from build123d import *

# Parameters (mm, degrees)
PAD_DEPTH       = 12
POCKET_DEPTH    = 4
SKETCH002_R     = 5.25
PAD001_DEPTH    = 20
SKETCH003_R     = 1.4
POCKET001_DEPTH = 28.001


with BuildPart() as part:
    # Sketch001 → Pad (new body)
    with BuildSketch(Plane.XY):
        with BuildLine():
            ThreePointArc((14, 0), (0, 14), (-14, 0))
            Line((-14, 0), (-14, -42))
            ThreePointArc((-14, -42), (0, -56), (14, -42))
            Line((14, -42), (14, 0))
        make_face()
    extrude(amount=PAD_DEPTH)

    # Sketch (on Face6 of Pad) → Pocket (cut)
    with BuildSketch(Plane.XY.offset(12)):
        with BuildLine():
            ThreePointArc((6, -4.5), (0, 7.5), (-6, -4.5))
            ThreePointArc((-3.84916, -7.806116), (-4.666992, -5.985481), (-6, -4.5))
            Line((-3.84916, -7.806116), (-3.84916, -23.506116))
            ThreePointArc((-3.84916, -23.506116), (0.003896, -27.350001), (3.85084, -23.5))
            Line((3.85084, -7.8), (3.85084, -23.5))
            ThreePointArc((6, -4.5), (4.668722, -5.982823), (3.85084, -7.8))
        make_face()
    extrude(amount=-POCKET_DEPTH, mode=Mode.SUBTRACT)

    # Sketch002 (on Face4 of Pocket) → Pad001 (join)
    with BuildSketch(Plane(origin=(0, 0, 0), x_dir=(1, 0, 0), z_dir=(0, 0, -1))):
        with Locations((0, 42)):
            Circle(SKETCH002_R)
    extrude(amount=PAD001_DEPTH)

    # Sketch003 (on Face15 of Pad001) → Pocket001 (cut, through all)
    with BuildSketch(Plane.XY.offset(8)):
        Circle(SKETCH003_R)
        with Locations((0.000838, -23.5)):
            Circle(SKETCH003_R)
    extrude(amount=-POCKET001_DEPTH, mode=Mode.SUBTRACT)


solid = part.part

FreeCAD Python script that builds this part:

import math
import FreeCAD as App
import Part
import Sketcher
from FreeCAD import Vector
Q = App.Units.Quantity

doc = App.newDocument("Part")
body = doc.addObject("PartDesign::Body", "Body")

# Sketch on XY plane
sketch1 = body.newObject("Sketcher::SketchObject", "Sketch")
sketch1.AttachmentSupport = (doc.getObject("XY_Plane"), [""])
sketch1.MapMode = "FlatFace"
sketch1.addGeometry([
    Part.ArcOfCircle(Part.Circle(Vector(0, 0, 0), Vector(0, 0, 1), 14), math.radians(0), math.radians(180)),
    Part.LineSegment(Vector(-14, 0, 0), Vector(-14, -42, 0)),
    Part.ArcOfCircle(Part.Circle(Vector(0, -42, 0), Vector(0, 0, 1), 14), math.radians(180), math.radians(360)),
    Part.LineSegment(Vector(14, -42, 0), Vector(14, 0, 0)),
], False)
sketch1.addConstraint([
    Sketcher.Constraint("Tangent", 0, 2, 1, 1),
    Sketcher.Constraint("Tangent", 1, 2, 2, 1),
    Sketcher.Constraint("Tangent", 2, 2, 3, 1),
    Sketcher.Constraint("Tangent", 3, 2, 0, 1),
    Sketcher.Constraint("Vertical", 1),
    Sketcher.Constraint("Vertical", 3),
    Sketcher.Constraint("Coincident", 0, 3, -1, 1),
    Sketcher.Constraint("Radius", 0, Q("14 mm")),
    Sketcher.Constraint("DistanceY", 1, 2, 1, 1, Q("42 mm")),
])
pad1 = body.newObject("PartDesign::Pad", "Pad")
pad1.Profile = sketch1
pad1.Length = 12

# Sketch on XY plane
sketch2 = body.newObject("Sketcher::SketchObject", "Sketch001")
sketch2.AttachmentSupport = (doc.getObject("XY_Plane"), [""])
sketch2.MapMode = "FlatFace"
sketch2.AttachmentOffset = App.Placement(Vector(0, 0, 12), App.Rotation())
sketch2.addGeometry([
    Part.ArcOfCircle(Part.Circle(Vector(0, 0, 0), Vector(0, 0, 1), 7.5), math.radians(-37), math.radians(217)),  # 0
    Part.ArcOfCircle(Part.Circle(Vector(-10.1, -9.5, 0), Vector(0, 0, 1), 6.5), math.radians(15), math.radians(51)),  # 1
    Part.LineSegment(Vector(-3.8, -7.8, 0), Vector(-3.8, -23.5, 0)),  # 2
    Part.ArcOfCircle(Part.Circle(Vector(0, -23.5, 0), Vector(0, 0, 1), 3.9), math.radians(-180), math.radians(0)),  # 3
    Part.LineSegment(Vector(3.9, -23.5, 0), Vector(3.9, -7.8, 0)),  # 4
    Part.ArcOfCircle(Part.Circle(Vector(10.1, -9.5, 0), Vector(0, 0, 1), 6.5), math.radians(129), math.radians(165)),  # 5
], False)
sketch2.addConstraint([
    Sketcher.Constraint("Coincident", 0, 2, 1, 2),
    Sketcher.Constraint("Coincident", 1, 1, 2, 1),
    Sketcher.Constraint("Coincident", 2, 2, 3, 1),
    Sketcher.Constraint("Tangent", 3, 2, 4, 1),
    Sketcher.Constraint("Coincident", 4, 2, 5, 2),
    Sketcher.Constraint("Coincident", 5, 1, 0, 1),
    Sketcher.Constraint("Vertical", 2),
    Sketcher.Constraint("Vertical", 4),
    Sketcher.Constraint("Coincident", 0, 3, -1, 1),
    Sketcher.Constraint("Equal", 1, 5),
    Sketcher.Constraint("Symmetric", 1, 3, 5, 3, -2),
    Sketcher.Constraint("Equal", 2, 4),
    Sketcher.Constraint("Radius", 0, Q("7.5 mm")),
    Sketcher.Constraint("DistanceY", 2, 2, 2, 1, Q("15.7 mm")),
    Sketcher.Constraint("DistanceX", 0, 2, -1, 1, Q("6 mm")),
    Sketcher.Constraint("DistanceY", 3, 3, 0, 2, Q("19 mm")),
    Sketcher.Constraint("DistanceX", 1, 3, -1, 1, Q("10.099999 mm")),
    Sketcher.Constraint("DistanceX", 2, 2, 3, 2, Q("7.7 mm")),
    Sketcher.Constraint("DistanceY", 1, 3, -1, 1, Q("9.519999 mm")),
])
pocket1 = body.newObject("PartDesign::Pocket", "Pocket")
pocket1.Profile = sketch2
pocket1.Length = 4

# Sketch on XY plane
sketch3 = body.newObject("Sketcher::SketchObject", "Sketch002")
sketch3.AttachmentSupport = (doc.getObject("XY_Plane"), [""])
sketch3.MapMode = "FlatFace"
sketch3.addGeometry(Part.Circle(Vector(0, -42, 0), Vector(0, 0, 1), 5), False)
sketch3.addConstraint([
    Sketcher.Constraint("PointOnObject", 0, 3, -2),
    Sketcher.Constraint("Diameter", 0, Q("10.5 mm")),
    Sketcher.Constraint("DistanceY", 0, 3, -1, 1, Q("42 mm")),
])
pad2 = body.newObject("PartDesign::Pad", "Pad001")
pad2.Profile = sketch3
pad2.Length = 20
pad2.Reversed = True

# Sketch on XY plane
sketch4 = body.newObject("Sketcher::SketchObject", "Sketch003")
sketch4.AttachmentSupport = (doc.getObject("XY_Plane"), [""])
sketch4.MapMode = "FlatFace"
sketch4.AttachmentOffset = App.Placement(Vector(0, 0, 8), App.Rotation())
sketch4.addGeometry([
    Part.Circle(Vector(0, 0, 0), Vector(0, 0, 1), 1.4),
    Part.Circle(Vector(0, -23.5, 0), Vector(0, 0, 1), 1.4),
], False)
sketch4.addConstraint([
    Sketcher.Constraint("Coincident", 0, 3, -1, 1),
    Sketcher.Constraint("Equal", 0, 1),
    Sketcher.Constraint("Diameter", 0, Q("2.8 mm")),
    Sketcher.Constraint("DistanceY", 1, 3, -1, 1, Q("23.5 mm")),
    Sketcher.Constraint("DistanceX", -1, 1, 1, 3, Q("0.000838 mm")),
])
pocket2 = body.newObject("PartDesign::Pocket", "Pocket001")
pocket2.Profile = sketch4
pocket2.Type = "ThroughAll"

doc.recompute()
